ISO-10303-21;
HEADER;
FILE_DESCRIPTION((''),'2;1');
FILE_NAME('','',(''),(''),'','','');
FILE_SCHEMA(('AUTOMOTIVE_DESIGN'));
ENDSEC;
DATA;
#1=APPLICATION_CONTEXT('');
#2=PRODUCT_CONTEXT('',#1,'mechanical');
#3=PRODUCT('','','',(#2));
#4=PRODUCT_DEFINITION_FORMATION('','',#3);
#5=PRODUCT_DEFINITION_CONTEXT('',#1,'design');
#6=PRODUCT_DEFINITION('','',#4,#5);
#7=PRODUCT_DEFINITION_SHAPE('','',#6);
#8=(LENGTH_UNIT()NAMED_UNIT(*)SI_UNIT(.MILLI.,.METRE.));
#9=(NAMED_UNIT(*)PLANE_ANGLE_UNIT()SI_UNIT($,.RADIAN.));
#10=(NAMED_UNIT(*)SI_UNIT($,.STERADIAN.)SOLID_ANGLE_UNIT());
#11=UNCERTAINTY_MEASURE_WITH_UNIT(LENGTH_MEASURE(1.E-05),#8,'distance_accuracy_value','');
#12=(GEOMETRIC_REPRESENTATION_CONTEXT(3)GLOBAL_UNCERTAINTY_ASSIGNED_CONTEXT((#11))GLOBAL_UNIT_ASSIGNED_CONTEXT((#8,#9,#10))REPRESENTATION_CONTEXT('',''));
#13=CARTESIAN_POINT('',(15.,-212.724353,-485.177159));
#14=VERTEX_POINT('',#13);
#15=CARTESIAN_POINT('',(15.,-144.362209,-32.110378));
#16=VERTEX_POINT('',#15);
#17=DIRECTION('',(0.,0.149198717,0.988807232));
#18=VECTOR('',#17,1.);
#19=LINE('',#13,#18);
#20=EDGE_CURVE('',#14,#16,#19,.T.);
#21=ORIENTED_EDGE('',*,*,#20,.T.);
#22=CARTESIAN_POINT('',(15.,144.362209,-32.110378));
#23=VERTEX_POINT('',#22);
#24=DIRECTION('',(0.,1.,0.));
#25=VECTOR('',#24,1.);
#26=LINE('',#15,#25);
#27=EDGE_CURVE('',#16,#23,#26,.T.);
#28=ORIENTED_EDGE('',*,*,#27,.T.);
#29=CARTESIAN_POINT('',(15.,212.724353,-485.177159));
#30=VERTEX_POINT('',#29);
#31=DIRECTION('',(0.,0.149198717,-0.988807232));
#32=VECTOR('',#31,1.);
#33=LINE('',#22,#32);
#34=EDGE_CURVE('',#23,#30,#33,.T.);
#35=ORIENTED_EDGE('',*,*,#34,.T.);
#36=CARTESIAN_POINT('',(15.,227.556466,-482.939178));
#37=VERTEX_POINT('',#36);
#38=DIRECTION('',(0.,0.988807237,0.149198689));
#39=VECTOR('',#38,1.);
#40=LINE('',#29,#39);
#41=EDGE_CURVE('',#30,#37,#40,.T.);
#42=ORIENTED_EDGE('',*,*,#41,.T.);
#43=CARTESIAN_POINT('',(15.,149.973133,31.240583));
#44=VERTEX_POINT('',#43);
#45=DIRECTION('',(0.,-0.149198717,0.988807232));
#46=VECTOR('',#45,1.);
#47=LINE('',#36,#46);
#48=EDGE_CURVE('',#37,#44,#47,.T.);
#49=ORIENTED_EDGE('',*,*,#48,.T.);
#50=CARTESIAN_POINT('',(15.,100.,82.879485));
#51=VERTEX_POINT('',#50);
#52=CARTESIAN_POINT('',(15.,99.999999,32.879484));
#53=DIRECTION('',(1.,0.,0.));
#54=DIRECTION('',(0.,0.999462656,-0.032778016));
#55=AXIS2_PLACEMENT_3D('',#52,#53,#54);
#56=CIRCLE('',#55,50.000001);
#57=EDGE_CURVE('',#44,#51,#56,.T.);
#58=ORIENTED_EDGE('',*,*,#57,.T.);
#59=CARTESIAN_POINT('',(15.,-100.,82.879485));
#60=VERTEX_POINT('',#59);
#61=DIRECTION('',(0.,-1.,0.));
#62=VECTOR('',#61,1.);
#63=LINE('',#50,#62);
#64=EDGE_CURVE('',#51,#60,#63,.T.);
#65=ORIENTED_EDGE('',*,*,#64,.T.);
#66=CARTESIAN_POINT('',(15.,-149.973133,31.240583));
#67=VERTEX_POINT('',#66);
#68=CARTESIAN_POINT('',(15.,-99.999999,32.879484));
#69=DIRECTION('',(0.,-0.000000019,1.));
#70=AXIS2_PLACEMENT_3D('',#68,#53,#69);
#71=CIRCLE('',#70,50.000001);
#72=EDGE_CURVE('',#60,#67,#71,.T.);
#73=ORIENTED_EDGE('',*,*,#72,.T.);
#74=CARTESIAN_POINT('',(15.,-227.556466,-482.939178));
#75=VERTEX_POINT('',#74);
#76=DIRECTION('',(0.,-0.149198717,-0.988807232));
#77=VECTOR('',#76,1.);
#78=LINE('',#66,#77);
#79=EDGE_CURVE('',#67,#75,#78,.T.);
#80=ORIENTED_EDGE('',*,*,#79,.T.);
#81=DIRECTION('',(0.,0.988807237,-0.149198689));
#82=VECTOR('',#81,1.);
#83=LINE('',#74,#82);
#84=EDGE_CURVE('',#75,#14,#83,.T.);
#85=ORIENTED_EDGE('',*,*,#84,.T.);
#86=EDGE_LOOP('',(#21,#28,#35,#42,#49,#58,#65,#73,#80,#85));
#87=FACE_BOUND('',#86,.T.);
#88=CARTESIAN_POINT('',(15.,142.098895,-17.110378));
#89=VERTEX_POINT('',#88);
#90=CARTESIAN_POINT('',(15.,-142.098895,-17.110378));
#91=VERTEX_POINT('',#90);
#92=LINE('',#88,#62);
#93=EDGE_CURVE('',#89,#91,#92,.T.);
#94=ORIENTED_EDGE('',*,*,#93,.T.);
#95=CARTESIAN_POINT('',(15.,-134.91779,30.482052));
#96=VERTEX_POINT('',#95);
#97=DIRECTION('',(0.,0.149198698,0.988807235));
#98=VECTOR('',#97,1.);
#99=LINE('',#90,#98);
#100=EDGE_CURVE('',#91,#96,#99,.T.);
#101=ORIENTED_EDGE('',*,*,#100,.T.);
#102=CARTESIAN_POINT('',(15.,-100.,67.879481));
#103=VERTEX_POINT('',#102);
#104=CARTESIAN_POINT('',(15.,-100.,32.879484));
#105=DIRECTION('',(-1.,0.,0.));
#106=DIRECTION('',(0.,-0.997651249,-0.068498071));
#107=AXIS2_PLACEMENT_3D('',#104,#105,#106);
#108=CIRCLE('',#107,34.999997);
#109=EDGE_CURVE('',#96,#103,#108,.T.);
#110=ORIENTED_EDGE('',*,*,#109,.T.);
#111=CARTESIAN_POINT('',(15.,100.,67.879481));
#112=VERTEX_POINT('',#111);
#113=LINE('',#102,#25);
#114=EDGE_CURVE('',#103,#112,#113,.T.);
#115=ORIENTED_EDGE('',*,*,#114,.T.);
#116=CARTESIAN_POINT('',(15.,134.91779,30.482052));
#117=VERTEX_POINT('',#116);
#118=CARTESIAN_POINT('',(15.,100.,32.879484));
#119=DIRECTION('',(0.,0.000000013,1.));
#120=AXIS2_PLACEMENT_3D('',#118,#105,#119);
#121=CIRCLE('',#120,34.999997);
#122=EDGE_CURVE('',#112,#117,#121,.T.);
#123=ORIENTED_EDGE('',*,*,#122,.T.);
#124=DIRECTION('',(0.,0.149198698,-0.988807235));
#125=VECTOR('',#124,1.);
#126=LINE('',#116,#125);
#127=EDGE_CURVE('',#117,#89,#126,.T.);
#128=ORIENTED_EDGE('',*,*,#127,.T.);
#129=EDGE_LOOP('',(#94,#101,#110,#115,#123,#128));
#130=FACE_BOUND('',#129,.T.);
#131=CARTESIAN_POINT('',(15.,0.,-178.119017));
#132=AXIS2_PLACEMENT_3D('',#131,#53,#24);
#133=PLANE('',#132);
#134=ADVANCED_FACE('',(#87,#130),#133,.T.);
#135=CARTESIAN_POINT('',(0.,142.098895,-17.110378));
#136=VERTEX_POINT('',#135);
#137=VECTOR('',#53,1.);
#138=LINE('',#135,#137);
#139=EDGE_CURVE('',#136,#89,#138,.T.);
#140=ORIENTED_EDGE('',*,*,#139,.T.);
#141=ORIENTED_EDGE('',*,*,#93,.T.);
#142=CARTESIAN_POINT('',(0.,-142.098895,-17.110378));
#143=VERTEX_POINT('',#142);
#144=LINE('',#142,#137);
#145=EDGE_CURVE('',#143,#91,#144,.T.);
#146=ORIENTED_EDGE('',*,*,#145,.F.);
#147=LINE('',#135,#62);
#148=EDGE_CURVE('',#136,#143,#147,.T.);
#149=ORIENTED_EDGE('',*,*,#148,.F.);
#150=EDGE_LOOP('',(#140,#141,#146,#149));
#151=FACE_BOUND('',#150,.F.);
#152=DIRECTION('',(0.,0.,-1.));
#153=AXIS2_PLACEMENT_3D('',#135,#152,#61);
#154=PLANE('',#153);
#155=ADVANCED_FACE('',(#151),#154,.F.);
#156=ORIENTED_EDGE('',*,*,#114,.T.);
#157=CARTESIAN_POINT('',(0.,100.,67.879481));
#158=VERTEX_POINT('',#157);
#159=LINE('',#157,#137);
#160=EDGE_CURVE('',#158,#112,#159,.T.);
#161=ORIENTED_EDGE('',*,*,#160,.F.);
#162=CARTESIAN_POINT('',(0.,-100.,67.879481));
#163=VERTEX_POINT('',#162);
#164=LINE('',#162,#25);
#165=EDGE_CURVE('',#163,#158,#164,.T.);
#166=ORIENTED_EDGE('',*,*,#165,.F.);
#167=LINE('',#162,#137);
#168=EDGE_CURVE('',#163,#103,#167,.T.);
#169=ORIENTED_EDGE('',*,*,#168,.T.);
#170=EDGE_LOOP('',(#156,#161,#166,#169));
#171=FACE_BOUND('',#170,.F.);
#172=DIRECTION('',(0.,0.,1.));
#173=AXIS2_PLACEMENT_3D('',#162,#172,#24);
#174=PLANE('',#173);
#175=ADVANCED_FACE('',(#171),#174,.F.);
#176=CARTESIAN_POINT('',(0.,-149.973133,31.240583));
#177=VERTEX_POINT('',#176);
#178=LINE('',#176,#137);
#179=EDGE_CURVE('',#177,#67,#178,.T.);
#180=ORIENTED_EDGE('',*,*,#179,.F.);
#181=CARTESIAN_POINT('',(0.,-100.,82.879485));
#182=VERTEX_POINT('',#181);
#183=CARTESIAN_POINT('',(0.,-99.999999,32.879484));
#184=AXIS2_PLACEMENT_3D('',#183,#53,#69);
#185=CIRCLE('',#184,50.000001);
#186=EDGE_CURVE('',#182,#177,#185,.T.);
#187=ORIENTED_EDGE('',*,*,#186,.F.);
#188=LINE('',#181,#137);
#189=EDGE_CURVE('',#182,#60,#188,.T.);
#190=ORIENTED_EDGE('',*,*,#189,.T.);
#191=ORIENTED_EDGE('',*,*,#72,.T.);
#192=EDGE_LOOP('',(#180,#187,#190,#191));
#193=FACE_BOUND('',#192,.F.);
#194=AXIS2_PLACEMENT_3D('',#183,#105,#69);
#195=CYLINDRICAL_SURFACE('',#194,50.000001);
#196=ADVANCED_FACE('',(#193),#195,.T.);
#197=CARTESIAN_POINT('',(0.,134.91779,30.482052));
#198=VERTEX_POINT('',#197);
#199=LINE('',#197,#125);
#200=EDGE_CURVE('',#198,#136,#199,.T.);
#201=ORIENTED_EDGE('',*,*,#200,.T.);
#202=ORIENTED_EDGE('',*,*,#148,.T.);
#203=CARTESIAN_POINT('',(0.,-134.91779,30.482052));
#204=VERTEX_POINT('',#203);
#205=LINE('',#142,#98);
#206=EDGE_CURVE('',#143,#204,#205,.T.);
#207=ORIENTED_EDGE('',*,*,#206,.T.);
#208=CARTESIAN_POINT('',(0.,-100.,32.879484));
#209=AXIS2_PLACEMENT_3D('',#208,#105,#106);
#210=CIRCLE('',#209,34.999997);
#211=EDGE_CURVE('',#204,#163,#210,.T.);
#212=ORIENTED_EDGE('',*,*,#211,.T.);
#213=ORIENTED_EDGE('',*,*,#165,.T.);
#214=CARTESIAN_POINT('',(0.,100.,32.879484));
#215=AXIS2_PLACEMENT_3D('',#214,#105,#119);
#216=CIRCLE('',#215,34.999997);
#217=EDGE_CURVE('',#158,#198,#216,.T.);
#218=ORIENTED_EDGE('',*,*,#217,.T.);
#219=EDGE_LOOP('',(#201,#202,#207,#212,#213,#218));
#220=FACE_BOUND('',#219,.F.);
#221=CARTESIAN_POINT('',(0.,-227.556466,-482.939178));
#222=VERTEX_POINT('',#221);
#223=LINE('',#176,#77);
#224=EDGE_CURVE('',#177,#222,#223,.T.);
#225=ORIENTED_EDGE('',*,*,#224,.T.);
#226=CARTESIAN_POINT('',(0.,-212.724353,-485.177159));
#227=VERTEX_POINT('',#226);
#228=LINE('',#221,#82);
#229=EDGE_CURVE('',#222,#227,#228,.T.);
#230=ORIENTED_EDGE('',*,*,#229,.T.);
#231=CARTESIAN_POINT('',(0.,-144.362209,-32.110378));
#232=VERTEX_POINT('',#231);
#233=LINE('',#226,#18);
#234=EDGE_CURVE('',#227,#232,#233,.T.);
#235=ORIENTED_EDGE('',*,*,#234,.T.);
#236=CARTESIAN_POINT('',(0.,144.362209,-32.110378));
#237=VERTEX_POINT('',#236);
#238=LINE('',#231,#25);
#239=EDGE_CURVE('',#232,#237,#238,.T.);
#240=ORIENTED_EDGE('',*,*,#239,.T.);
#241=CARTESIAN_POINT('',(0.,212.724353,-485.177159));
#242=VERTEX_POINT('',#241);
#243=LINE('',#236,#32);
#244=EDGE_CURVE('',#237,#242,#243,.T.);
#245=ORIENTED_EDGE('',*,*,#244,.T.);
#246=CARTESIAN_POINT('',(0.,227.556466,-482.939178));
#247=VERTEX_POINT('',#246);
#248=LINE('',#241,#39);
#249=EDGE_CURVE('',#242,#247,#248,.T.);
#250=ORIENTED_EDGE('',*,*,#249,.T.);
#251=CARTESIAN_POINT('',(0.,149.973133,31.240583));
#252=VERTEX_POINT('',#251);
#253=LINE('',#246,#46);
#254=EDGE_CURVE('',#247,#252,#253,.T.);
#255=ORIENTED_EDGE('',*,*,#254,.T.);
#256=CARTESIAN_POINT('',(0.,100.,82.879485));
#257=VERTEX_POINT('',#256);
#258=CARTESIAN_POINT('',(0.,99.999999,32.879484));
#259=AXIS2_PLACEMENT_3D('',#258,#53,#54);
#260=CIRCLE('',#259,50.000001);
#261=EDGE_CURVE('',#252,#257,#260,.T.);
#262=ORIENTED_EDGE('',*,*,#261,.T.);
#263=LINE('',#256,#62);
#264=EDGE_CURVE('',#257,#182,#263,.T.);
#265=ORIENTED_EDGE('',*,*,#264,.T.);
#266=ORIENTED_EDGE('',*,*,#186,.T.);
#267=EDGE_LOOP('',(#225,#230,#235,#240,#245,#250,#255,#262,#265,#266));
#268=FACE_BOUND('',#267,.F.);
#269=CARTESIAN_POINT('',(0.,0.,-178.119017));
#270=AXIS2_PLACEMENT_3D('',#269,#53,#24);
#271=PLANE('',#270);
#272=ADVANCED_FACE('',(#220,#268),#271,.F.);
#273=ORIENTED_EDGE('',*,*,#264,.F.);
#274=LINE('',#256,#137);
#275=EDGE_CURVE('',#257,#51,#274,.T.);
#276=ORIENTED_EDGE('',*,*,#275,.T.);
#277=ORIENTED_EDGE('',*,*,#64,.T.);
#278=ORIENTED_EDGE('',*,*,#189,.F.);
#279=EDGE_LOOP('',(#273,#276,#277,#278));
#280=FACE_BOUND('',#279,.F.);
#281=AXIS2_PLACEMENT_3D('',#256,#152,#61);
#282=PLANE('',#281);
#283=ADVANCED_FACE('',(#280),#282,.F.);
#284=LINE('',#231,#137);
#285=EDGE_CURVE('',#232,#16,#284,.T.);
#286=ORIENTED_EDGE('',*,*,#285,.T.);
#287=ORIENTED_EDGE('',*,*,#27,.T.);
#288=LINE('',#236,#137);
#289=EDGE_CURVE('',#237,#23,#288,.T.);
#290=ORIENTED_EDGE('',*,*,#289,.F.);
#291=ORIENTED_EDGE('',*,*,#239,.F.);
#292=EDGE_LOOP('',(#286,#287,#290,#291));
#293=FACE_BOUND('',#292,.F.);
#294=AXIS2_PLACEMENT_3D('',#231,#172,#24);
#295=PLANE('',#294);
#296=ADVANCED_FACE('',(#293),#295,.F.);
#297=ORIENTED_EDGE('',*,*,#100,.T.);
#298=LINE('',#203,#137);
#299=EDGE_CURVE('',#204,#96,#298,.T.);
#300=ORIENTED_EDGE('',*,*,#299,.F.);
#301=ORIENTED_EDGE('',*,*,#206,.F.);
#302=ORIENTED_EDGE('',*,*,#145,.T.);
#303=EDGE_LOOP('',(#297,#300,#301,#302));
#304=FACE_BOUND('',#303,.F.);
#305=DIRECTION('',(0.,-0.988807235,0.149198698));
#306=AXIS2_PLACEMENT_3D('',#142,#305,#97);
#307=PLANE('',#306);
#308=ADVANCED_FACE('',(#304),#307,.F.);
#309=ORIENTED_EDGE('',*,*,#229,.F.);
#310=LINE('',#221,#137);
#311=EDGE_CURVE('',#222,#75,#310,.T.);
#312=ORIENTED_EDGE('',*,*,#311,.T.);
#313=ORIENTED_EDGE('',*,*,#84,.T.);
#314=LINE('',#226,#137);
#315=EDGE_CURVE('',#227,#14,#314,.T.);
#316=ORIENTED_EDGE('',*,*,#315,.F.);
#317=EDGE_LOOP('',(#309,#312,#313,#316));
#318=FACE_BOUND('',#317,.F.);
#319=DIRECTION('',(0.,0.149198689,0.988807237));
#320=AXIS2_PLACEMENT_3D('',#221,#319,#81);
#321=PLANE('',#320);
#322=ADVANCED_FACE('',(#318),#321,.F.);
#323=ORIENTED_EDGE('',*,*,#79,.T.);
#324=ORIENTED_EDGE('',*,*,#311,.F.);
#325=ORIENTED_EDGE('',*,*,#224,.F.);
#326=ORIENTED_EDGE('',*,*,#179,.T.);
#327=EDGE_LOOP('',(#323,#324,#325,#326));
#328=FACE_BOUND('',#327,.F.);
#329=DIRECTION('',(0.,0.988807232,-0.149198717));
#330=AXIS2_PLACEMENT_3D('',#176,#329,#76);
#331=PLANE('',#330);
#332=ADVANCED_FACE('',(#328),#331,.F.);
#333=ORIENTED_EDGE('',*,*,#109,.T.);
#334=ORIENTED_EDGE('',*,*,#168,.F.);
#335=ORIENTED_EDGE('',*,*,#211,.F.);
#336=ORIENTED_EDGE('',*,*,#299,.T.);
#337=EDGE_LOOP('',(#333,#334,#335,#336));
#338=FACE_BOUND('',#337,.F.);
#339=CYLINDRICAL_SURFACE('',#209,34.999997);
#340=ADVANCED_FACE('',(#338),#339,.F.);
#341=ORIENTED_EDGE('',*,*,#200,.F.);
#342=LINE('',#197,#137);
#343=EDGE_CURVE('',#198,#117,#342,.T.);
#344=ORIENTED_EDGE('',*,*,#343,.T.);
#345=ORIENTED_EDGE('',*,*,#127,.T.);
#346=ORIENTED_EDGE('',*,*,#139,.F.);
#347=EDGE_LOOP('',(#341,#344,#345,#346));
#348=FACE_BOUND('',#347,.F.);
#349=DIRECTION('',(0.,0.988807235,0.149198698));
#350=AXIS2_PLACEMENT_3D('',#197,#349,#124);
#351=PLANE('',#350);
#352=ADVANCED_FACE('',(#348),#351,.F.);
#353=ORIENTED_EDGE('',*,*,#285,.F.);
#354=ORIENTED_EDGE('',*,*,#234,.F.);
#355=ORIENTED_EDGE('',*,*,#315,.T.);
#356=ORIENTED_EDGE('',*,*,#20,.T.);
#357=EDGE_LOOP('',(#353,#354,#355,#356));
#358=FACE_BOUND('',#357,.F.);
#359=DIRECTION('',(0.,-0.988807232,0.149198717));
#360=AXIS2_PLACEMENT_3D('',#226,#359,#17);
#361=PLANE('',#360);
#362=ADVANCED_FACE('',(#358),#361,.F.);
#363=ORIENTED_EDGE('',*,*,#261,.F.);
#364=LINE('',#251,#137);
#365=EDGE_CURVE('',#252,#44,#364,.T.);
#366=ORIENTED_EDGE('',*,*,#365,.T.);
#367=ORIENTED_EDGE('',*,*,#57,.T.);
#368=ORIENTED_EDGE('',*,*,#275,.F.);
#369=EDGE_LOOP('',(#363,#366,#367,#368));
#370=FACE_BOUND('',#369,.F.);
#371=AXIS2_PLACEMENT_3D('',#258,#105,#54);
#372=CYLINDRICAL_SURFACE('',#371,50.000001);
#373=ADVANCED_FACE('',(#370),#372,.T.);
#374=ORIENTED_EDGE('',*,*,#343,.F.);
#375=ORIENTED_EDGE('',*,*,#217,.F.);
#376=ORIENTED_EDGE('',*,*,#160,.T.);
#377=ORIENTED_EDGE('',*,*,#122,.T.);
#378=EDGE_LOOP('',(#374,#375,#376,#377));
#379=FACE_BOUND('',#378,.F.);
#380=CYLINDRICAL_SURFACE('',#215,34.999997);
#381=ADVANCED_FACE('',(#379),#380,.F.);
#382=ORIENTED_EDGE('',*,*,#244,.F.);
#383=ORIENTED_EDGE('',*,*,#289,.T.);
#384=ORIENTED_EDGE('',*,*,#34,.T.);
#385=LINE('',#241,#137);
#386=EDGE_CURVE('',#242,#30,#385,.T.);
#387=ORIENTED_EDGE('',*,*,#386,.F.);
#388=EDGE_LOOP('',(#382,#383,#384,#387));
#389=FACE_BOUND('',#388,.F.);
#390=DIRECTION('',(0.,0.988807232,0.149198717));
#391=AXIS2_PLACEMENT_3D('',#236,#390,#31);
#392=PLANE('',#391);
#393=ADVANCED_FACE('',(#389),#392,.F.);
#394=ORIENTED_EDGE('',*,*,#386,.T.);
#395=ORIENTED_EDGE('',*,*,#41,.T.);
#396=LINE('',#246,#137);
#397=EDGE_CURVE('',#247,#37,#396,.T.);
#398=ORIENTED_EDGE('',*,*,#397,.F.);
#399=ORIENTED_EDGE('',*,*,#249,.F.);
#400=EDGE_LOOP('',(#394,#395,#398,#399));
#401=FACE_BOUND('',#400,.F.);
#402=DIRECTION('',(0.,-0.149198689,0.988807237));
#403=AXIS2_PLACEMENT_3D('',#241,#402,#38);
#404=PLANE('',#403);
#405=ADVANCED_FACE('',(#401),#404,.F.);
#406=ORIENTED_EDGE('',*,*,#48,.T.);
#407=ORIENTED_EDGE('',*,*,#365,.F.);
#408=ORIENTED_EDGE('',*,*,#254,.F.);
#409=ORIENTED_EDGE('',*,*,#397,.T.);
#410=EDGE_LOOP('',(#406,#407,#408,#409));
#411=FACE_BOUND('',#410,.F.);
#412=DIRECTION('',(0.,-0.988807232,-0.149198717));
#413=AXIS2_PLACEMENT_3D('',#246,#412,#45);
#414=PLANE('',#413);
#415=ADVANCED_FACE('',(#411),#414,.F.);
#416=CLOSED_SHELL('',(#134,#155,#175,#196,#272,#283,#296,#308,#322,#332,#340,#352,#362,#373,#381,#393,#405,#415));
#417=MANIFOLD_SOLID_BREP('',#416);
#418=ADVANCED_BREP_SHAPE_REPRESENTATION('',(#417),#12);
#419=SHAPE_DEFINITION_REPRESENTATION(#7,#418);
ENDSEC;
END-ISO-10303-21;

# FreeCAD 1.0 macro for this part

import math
import FreeCAD as App
import Part
import Sketcher

V = App.Vector

doc = App.newDocument("Part")
body = doc.addObject("PartDesign::Body", "Body")

sketch1 = body.newObject("Sketcher::SketchObject", "Sketch")
sketch1.AttachmentSupport = (doc.getObject("YZ_Plane"), [""])
sketch1.MapMode = "FlatFace"
sketch1.addGeometry([
    Part.ArcOfCircle(Part.Circle(V(-99.999999, 32.879484, 0), V(0, 0, 1), 50.000001), math.radians(90.000001), math.radians(181.878378)),
    Part.LineSegment(V(-149.973133, 31.240583, 0), V(-227.556466, -482.939178, 0)),
    Part.LineSegment(V(-227.556466, -482.939178, 0), V(-212.724353, -485.177159, 0)),
    Part.LineSegment(V(-212.724353, -485.177159, 0), V(-144.362209, -32.110378, 0)),
    Part.LineSegment(V(-144.362209, -32.110378, 0), V(144.362209, -32.110378, 0)),
    Part.LineSegment(V(144.362209, -32.110378, 0), V(212.724353, -485.177159, 0)),
    Part.LineSegment(V(212.724353, -485.177159, 0), V(227.556466, -482.939178, 0)),
    Part.LineSegment(V(227.556466, -482.939178, 0), V(149.973133, 31.240583, 0)),
    Part.ArcOfCircle(Part.Circle(V(99.999999, 32.879484, 0), V(0, 0, 1), 50.000001), math.radians(-1.878378), math.radians(89.999999)),
    Part.LineSegment(V(100, 82.879485, 0), V(-100, 82.879485, 0)),
    Part.LineSegment(V(142.098895, -17.110378, 0), V(-142.098895, -17.110378, 0)),
    Part.LineSegment(V(-142.098895, -17.110378, 0), V(-134.91779, 30.482052, 0)),
    Part.ArcOfCircle(Part.Circle(V(-100, 32.879484, 0), V(0, 0, 1), 34.999997), math.radians(90.000001), math.radians(183.927726)),
    Part.LineSegment(V(-100, 67.879481, 0), V(100, 67.879481, 0)),
    Part.ArcOfCircle(Part.Circle(V(100, 32.879484, 0), V(0, 0, 1), 34.999997), math.radians(-3.927726), math.radians(89.999999)),
    Part.LineSegment(V(134.91779, 30.482052, 0), V(142.098895, -17.110378, 0)),
], False)
sketch1.addConstraint([
    Sketcher.Constraint("Coincident", 0, 2, 1, 1),
    Sketcher.Constraint("Coincident", 1, 2, 2, 1),
    Sketcher.Constraint("Coincident", 2, 2, 3, 1),
    Sketcher.Constraint("Coincident", 3, 2, 4, 1),
    Sketcher.Constraint("Coincident", 4, 2, 5, 1),
    Sketcher.Constraint("Coincident", 5, 2, 6, 1),
    Sketcher.Constraint("Coincident", 6, 2, 7, 1),
    Sketcher.Constraint("Coincident", 7, 2, 8, 1),
    Sketcher.Constraint("Tangent", 8, 2, 9, 1),
    Sketcher.Constraint("Tangent", 9, 2, 0, 1),
    Sketcher.Constraint("Coincident", 10, 2, 11, 1),
    Sketcher.Constraint("Coincident", 11, 2, 12, 2),
    Sketcher.Constraint("Tangent", 12, 1, 13, 1),
    Sketcher.Constraint("Tangent", 13, 2, 14, 2),
    Sketcher.Constraint("Coincident", 14, 1, 15, 1),
    Sketcher.Constraint("Coincident", 15, 2, 10, 1),
    Sketcher.Constraint("Horizontal", 4),
    Sketcher.Constraint("Horizontal", 9),
    Sketcher.Constraint("Horizontal", 10),
    Sketcher.Constraint("Horizontal", 13),
    Sketcher.Constraint("Coincident", 12, 3, 0, 3),
    Sketcher.Constraint("Coincident", 14, 3, 8, 3),
    Sketcher.Constraint("Equal", 0, 8),
    Sketcher.Constraint("Symmetric", 2, 2, 5, 2, -2),
    Sketcher.Constraint("Symmetric", 1, 2, 6, 2, -2),
    Sketcher.Constraint("Symmetric", 0, 2, 7, 2, -2),
    Sketcher.Constraint("Perpendicular", 1, 2),
    Sketcher.Constraint("Perpendicular", 2, 3),
    Sketcher.Constraint("Perpendicular", 5, 6),
    Sketcher.Constraint("Parallel", 3, 11),
    Sketcher.Constraint("Parallel", 7, 15),
    Sketcher.Constraint("Horizontal", 11, 2, 14, 1),
    Sketcher.Constraint("Radius", 0, 50.000001),
    Sketcher.Constraint("DistanceX", 9, 2, 9, 1, 200.0),
    Sketcher.Constraint("Distance", 1, 520.0),
    Sketcher.Constraint("DistanceY", 3, 2, 10, 2, 15.0),
    Sketcher.Constraint("Radius", 12, 34.999997),
    Sketcher.Constraint("DistanceX", 4, 1, 4, 2, 288.724418),
    Sketcher.Constraint("DistanceX", 10, 2, 10, 1, 284.19779),
    Sketcher.Constraint("DistanceY", 0, 2, 12, 3, 1.638901),
    Sketcher.Constraint("DistanceY", 6, 2, 4, 2, 450.8288),
    Sketcher.Constraint("Distance", 11, 48.131151),
    Sketcher.Constraint("DistanceY", 1, 2, -1, 1, 482.939178),
])
pad1 = body.newObject("PartDesign::Pad", "Pad")
pad1.Profile = sketch1
pad1.Length = 15

doc.recompute()
